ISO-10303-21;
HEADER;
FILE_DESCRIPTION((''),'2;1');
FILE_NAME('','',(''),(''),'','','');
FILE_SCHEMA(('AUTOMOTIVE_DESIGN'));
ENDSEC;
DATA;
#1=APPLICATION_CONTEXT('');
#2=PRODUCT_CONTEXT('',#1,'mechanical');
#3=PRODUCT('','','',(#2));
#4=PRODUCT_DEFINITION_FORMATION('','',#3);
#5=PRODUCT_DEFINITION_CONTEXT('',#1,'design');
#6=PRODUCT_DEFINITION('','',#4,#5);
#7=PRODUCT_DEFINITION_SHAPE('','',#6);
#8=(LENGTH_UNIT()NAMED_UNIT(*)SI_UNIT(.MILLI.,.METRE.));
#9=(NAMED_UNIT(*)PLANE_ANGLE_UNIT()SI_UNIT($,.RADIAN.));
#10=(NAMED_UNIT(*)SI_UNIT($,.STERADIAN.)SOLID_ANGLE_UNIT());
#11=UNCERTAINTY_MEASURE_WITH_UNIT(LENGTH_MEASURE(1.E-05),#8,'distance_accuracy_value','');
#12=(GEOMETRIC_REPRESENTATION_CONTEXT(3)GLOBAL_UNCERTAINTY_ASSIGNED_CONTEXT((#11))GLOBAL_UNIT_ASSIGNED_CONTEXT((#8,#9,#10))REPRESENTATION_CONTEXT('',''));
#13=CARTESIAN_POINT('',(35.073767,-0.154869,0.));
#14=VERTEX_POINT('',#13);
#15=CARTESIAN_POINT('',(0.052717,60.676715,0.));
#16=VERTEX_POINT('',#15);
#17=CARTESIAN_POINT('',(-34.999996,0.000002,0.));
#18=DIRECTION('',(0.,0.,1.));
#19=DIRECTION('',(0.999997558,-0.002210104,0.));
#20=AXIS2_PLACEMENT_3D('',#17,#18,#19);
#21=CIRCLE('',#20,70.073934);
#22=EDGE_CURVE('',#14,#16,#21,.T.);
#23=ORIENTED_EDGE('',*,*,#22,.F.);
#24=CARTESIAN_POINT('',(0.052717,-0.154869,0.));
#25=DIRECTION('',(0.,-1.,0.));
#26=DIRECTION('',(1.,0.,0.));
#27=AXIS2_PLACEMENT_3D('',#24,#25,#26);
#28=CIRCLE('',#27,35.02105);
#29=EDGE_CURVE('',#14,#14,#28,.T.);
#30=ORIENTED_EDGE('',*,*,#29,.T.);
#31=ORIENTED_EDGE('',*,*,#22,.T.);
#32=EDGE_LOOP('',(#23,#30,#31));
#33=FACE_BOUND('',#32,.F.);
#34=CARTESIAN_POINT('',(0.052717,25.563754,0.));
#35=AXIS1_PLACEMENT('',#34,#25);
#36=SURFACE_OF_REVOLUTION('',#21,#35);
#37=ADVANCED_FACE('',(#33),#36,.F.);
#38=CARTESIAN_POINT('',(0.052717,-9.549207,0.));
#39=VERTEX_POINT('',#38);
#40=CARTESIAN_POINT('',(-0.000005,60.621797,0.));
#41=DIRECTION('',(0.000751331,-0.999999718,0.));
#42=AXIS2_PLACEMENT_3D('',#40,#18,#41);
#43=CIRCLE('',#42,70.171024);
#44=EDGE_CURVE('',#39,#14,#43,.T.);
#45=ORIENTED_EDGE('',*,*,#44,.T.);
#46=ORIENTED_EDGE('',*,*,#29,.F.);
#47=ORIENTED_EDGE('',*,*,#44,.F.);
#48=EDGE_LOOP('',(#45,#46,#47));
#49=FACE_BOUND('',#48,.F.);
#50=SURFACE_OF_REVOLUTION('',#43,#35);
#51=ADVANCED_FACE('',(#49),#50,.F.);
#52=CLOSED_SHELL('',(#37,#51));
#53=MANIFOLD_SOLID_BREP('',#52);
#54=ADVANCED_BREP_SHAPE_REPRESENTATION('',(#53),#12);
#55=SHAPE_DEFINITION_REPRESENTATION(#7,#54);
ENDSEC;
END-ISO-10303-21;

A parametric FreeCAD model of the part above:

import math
import FreeCAD as App
import Part
import Sketcher
Q = App.Units.Quantity

doc = App.newDocument("Part")
body = doc.addObject("PartDesign::Body", "Body")

# Sketch on XY plane
sketch1 = doc.addObject("Sketcher::SketchObject", "Sketch")
body.addObject(sketch1)
sketch1.AttachmentSupport = (doc.XY_Plane, [""])
sketch1.MapMode = "FlatFace"
sketch1.addGeometry([
    Part.LineSegment(App.Vector(0, 61, 0), App.Vector(0, -10, 0)),
    Part.ArcOfCircle(Part.Circle(App.Vector(0, 61, 0), App.Vector(0, 0, 1), 70), math.radians(-90), math.radians(-60)),
    Part.ArcOfCircle(Part.Circle(App.Vector(-35, 0, 0), App.Vector(0, 0, 1), 70), math.radians(0), math.radians(60)),
], False)
sketch1.addGeometry(Part.LineSegment(App.Vector(0, 61, 0), App.Vector(0, -10, 0)), True)  # axis
sketch1.addConstraint([
    Sketcher.Constraint("Coincident", 0, 2, 1, 1),
    Sketcher.Constraint("Coincident", 1, 2, 2, 1),
    Sketcher.Constraint("Coincident", 2, 2, 0, 1),
    Sketcher.Constraint("Vertical", 0),
    Sketcher.Constraint("Vertical", 3),
    Sketcher.Constraint("Coincident", 3, 1, 2, 2),
    Sketcher.Constraint("PointOnObject", 2, 3, -1),
    Sketcher.Constraint("Equal", 0, 3),
    Sketcher.Constraint("Radius", 1, Q("70.171024 mm")),
    Sketcher.Constraint("Radius", 2, Q("70.073934 mm")),
    Sketcher.Constraint("DistanceY", 0, 2, 0, 1, Q("70.225922 mm")),
    Sketcher.Constraint("DistanceY", 1, 2, -1, 1, Q("0.154869 mm")),
    Sketcher.Constraint("DistanceX", 2, 3, 1, 3, Q("34.999991 mm")),
    Sketcher.Constraint("DistanceX", 2, 3, -1, 1, Q("34.999996 mm")),
])
revolution = doc.addObject("PartDesign::Revolution", "Revolution")
body.addObject(revolution)
revolution.Profile = sketch1
revolution.ReferenceAxis = (sketch1, ["Axis0"])
revolution.Angle = 360

doc.recompute()
